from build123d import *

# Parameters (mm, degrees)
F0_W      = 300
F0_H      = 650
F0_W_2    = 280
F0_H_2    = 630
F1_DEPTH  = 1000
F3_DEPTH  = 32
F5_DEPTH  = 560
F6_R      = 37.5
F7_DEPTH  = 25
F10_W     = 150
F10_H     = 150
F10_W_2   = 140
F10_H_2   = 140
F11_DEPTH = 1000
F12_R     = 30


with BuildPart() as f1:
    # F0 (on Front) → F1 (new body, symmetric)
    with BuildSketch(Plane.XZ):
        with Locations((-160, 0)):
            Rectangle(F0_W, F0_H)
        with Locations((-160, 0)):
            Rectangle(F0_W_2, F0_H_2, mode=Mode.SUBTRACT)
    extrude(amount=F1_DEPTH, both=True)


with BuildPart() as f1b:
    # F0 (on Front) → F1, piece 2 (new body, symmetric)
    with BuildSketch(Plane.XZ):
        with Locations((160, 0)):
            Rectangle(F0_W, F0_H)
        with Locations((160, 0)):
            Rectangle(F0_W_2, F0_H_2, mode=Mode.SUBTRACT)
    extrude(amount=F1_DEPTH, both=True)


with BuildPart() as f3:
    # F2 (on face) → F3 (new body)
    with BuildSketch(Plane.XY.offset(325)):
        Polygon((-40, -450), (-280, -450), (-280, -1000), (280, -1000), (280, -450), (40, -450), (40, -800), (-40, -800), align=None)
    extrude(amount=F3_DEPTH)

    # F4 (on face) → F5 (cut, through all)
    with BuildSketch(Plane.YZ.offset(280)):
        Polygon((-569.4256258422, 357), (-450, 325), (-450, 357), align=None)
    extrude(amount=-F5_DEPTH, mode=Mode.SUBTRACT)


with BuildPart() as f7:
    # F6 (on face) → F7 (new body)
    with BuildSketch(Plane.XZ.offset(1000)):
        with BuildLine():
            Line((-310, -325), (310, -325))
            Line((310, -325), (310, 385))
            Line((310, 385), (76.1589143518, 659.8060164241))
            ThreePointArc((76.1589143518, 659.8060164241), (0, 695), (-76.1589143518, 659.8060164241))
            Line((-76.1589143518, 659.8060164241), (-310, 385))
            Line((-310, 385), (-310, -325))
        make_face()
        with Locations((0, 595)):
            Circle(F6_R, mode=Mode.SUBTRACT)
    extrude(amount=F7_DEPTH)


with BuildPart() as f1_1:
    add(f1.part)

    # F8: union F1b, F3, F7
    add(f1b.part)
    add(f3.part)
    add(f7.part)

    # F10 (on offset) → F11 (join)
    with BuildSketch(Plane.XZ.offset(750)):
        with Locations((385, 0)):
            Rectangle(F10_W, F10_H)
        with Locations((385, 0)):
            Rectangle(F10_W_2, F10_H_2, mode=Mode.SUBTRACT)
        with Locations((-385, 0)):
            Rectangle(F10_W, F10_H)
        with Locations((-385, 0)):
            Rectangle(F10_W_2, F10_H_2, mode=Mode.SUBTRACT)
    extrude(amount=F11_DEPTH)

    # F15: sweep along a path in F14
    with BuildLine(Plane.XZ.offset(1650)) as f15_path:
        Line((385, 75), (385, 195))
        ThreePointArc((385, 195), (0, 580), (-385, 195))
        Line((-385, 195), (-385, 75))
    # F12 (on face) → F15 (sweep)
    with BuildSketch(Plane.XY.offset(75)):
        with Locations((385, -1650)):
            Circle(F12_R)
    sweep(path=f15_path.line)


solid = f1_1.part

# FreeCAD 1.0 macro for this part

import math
import FreeCAD as App
import Part
import Sketcher

V = App.Vector
Q = App.Units.Quantity

doc = App.newDocument("Part")
body = doc.addObject("PartDesign::Body", "Body")

sketch1 = body.newObject("Sketcher::SketchObject", "Sketch")
sketch1.AttachmentSupport = (doc.getObject("XZ_Plane"), [""])
sketch1.MapMode = "FlatFace"
sketch1.addGeometry(Part.LineSegment(V(-310, 325, 0), V(-310, -325, 0)), False)
sketch1.addGeometry(Part.LineSegment(V(-310, -325, 0), V(-10, -325, 0)), False)
sketch1.addGeometry(Part.LineSegment(V(-10, -325, 0), V(-10, 325, 0)), False)
sketch1.addGeometry(Part.LineSegment(V(-10, 325, 0), V(-310, 325, 0)), False)
sketch1.addGeometry(Part.LineSegment(V(-20, -315, 0), V(-300, -315, 0)), False)
sketch1.addGeometry(Part.LineSegment(V(-300, -315, 0), V(-300, 315, 0)), False)
sketch1.addGeometry(Part.LineSegment(V(-300, 315, 0), V(-20, 315, 0)), False)
sketch1.addGeometry(Part.LineSegment(V(-20, 315, 0), V(-20, -315, 0)), False)
sketch1.addConstraint(Sketcher.Constraint("Coincident", 0, 2, 1, 1))
sketch1.addConstraint(Sketcher.Constraint("Coincident", 1, 2, 2, 1))
sketch1.addConstraint(Sketcher.Constraint("Coincident", 2, 2, 3, 1))
sketch1.addConstraint(Sketcher.Constraint("Coincident", 3, 2, 0, 1))
sketch1.addConstraint(Sketcher.Constraint("Coincident", 4, 2, 5, 1))
sketch1.addConstraint(Sketcher.Constraint("Coincident", 5, 2, 6, 1))
sketch1.addConstraint(Sketcher.Constraint("Coincident", 6, 2, 7, 1))
sketch1.addConstraint(Sketcher.Constraint("Coincident", 7, 2, 4, 1))
sketch1.addConstraint(Sketcher.Constraint("Vertical", 0))
sketch1.addConstraint(Sketcher.Constraint("Horizontal", 1))
sketch1.addConstraint(Sketcher.Constraint("Vertical", 2))
sketch1.addConstraint(Sketcher.Constraint("Horizontal", 3))
sketch1.addConstraint(Sketcher.Constraint("Horizontal", 4))
sketch1.addConstraint(Sketcher.Constraint("Vertical", 5))
sketch1.addConstraint(Sketcher.Constraint("Horizontal", 6))
sketch1.addConstraint(Sketcher.Constraint("Vertical", 7))
sketch1.addConstraint(Sketcher.Constraint("DistanceX", 1, 1, 1, 2, Q("300 mm")))
sketch1.addConstraint(Sketcher.Constraint("DistanceX", 4, 2, 4, 1, Q("280 mm")))
sketch1.addConstraint(Sketcher.Constraint("DistanceY", 0, 2, 0, 1, Q("650 mm")))
sketch1.addConstraint(Sketcher.Constraint("DistanceY", 5, 1, 5, 2, Q("630 mm")))
sketch1.addConstraint(Sketcher.Constraint("DistanceX", 0, 2, -1, 1, Q("310 mm")))
sketch1.addConstraint(Sketcher.Constraint("DistanceY", 0, 2, -1, 1, Q("325 mm")))
sketch1.addConstraint(Sketcher.Constraint("DistanceX", 4, 2, -1, 1, Q("300 mm")))
sketch1.addConstraint(Sketcher.Constraint("DistanceY", 4, 2, -1, 1, Q("315 mm")))
pad1 = body.newObject("PartDesign::Pad", "Pad")
pad1.Profile = sketch1
pad1.Length = 2000
pad1.Midplane = True
body2 = doc.addObject("PartDesign::Body", "Body001")

sketch2 = body2.newObject("Sketcher::SketchObject", "Sketch001")
sketch2.AttachmentSupport = (doc.getObject("XZ_Plane001"), [""])
sketch2.MapMode = "FlatFace"
sketch2.addGeometry(Part.LineSegment(V(10, 325, 0), V(10, -325, 0)), False)
sketch2.addGeometry(Part.LineSegment(V(10, -325, 0), V(310, -325, 0)), False)
sketch2.addGeometry(Part.LineSegment(V(310, -325, 0), V(310, 325, 0)), False)
sketch2.addGeometry(Part.LineSegment(V(310, 325, 0), V(10, 325, 0)), False)
sketch2.addGeometry(Part.LineSegment(V(300, -315, 0), V(20, -315, 0)), False)
sketch2.addGeometry(Part.LineSegment(V(20, -315, 0), V(20, 315, 0)), False)
sketch2.addGeometry(Part.LineSegment(V(20, 315, 0), V(300, 315, 0)), False)
sketch2.addGeometry(Part.LineSegment(V(300, 315, 0), V(300, -315, 0)), False)
sketch2.addConstraint(Sketcher.Constraint("Coincident", 0, 2, 1, 1))
sketch2.addConstraint(Sketcher.Constraint("Coincident", 1, 2, 2, 1))
sketch2.addConstraint(Sketcher.Constraint("Coincident", 2, 2, 3, 1))
sketch2.addConstraint(Sketcher.Constraint("Coincident", 3, 2, 0, 1))
sketch2.addConstraint(Sketcher.Constraint("Coincident", 4, 2, 5, 1))
sketch2.addConstraint(Sketcher.Constraint("Coincident", 5, 2, 6, 1))
sketch2.addConstraint(Sketcher.Constraint("Coincident", 6, 2, 7, 1))
sketch2.addConstraint(Sketcher.Constraint("Coincident", 7, 2, 4, 1))
sketch2.addConstraint(Sketcher.Constraint("Vertical", 0))
sketch2.addConstraint(Sketcher.Constraint("Horizontal", 1))
sketch2.addConstraint(Sketcher.Constraint("Vertical", 2))
sketch2.addConstraint(Sketcher.Constraint("Horizontal", 3))
sketch2.addConstraint(Sketcher.Constraint("Horizontal", 4))
sketch2.addConstraint(Sketcher.Constraint("Vertical", 5))
sketch2.addConstraint(Sketcher.Constraint("Horizontal", 6))
sketch2.addConstraint(Sketcher.Constraint("Vertical", 7))
sketch2.addConstraint(Sketcher.Constraint("DistanceX", 1, 1, 1, 2, Q("300 mm")))
sketch2.addConstraint(Sketcher.Constraint("DistanceX", 4, 2, 4, 1, Q("280 mm")))
sketch2.addConstraint(Sketcher.Constraint("DistanceY", 0, 2, 0, 1, Q("650 mm")))
sketch2.addConstraint(Sketcher.Constraint("DistanceY", 5, 1, 5, 2, Q("630 mm")))
sketch2.addConstraint(Sketcher.Constraint("DistanceX", -1, 1, 0, 2, Q("10 mm")))
sketch2.addConstraint(Sketcher.Constraint("DistanceY", 0, 2, -1, 1, Q("325 mm")))
sketch2.addConstraint(Sketcher.Constraint("DistanceX", -1, 1, 4, 2, Q("20 mm")))
sketch2.addConstraint(Sketcher.Constraint("DistanceY", 4, 2, -1, 1, Q("315 mm")))
pad2 = body2.newObject("PartDesign::Pad", "Pad001")
pad2.Profile = sketch2
pad2.Length = 2000
pad2.Midplane = True
body3 = doc.addObject("PartDesign::Body", "Body002")

sketch3 = body3.newObject("Sketcher::SketchObject", "Sketch002")
sketch3.AttachmentSupport = (doc.getObject("XY_Plane002"), [""])
sketch3.MapMode = "FlatFace"
sketch3.AttachmentOffset = App.Placement(V(0, 0, 325), App.Rotation())
sketch3.addGeometry(Part.LineSegment(V(-40, -450, 0), V(-280, -450, 0)), False)
sketch3.addGeometry(Part.LineSegment(V(-280, -450, 0), V(-280, -1000, 0)), False)
sketch3.addGeometry(Part.LineSegment(V(-280, -1000, 0), V(280, -1000, 0)), False)
sketch3.addGeometry(Part.LineSegment(V(280, -1000, 0), V(280, -450, 0)), False)
sketch3.addGeometry(Part.LineSegment(V(280, -450, 0), V(40, -450, 0)), False)
sketch3.addGeometry(Part.LineSegment(V(40, -450, 0), V(40, -800, 0)), False)
sketch3.addGeometry(Part.LineSegment(V(40, -800, 0), V(-40, -800, 0)), False)
sketch3.addGeometry(Part.LineSegment(V(-40, -800, 0), V(-40, -450, 0)), False)
sketch3.addConstraint(Sketcher.Constraint("Coincident", 0, 2, 1, 1))
sketch3.addConstraint(Sketcher.Constraint("Coincident", 1, 2, 2, 1))
sketch3.addConstraint(Sketcher.Constraint("Coincident", 2, 2, 3, 1))
sketch3.addConstraint(Sketcher.Constraint("Coincident", 3, 2, 4, 1))
sketch3.addConstraint(Sketcher.Constraint("Coincident", 4, 2, 5, 1))
sketch3.addConstraint(Sketcher.Constraint("Coincident", 5, 2, 6, 1))
sketch3.addConstraint(Sketcher.Constraint("Coincident", 6, 2, 7, 1))
sketch3.addConstraint(Sketcher.Constraint("Coincident", 7, 2, 0, 1))
sketch3.addConstraint(Sketcher.Constraint("Horizontal", 0))
sketch3.addConstraint(Sketcher.Constraint("Vertical", 1))
sketch3.addConstraint(Sketcher.Constraint("Horizontal", 2))
sketch3.addConstraint(Sketcher.Constraint("Vertical", 3))
sketch3.addConstraint(Sketcher.Constraint("Horizontal", 4))
sketch3.addConstraint(Sketcher.Constraint("Vertical", 5))
sketch3.addConstraint(Sketcher.Constraint("Horizontal", 6))
sketch3.addConstraint(Sketcher.Constraint("Vertical", 7))
sketch3.addConstraint(Sketcher.Constraint("Symmetric", 0, 2, 3, 2, -2))
sketch3.addConstraint(Sketcher.Constraint("Equal", 0, 4))
sketch3.addConstraint(Sketcher.Constraint("DistanceX", 0, 2, 0, 1, Q("240 mm")))
sketch3.addConstraint(Sketcher.Constraint("DistanceX", 2, 1, 2, 2, Q("560 mm")))
sketch3.addConstraint(Sketcher.Constraint("DistanceY", 1, 2, 1, 1, Q("550 mm")))
sketch3.addConstraint(Sketcher.Constraint("DistanceY", 5, 2, 5, 1, Q("350 mm")))
sketch3.addConstraint(Sketcher.Constraint("DistanceY", 0, 2, -1, 1, Q("450 mm")))
pad3 = body3.newObject("PartDesign::Pad", "Pad002")
pad3.Profile = sketch3
pad3.Length = 32

sketch4 = body3.newObject("Sketcher::SketchObject", "Sketch003")
sketch4.AttachmentSupport = (doc.getObject("YZ_Plane002"), [""])
sketch4.MapMode = "FlatFace"
sketch4.AttachmentOffset = App.Placement(V(0, 0, 280), App.Rotation())
sketch4.addGeometry(Part.LineSegment(V(-569, 357, 0), V(-450, 325, 0)), False)
sketch4.addGeometry(Part.LineSegment(V(-450, 325, 0), V(-450, 357, 0)), False)
sketch4.addGeometry(Part.LineSegment(V(-450, 357, 0), V(-569, 357, 0)), False)
sketch4.addConstraint(Sketcher.Constraint("Coincident", 0, 2, 1, 1))
sketch4.addConstraint(Sketcher.Constraint("Coincident", 1, 2, 2, 1))
sketch4.addConstraint(Sketcher.Constraint("Coincident", 2, 2, 0, 1))
sketch4.addConstraint(Sketcher.Constraint("Vertical", 1))
sketch4.addConstraint(Sketcher.Constraint("Horizontal", 2))
sketch4.addConstraint(Sketcher.Constraint("DistanceY", 1, 1, 1, 2, Q("32 mm")))
sketch4.addConstraint(Sketcher.Constraint("Angle", 0, Q("-15 deg")))
sketch4.addConstraint(Sketcher.Constraint("DistanceX", 0, 2, -1, 1, Q("450 mm")))
sketch4.addConstraint(Sketcher.Constraint("DistanceY", -1, 1, 0, 2, Q("325 mm")))
pocket1 = body3.newObject("PartDesign::Pocket", "Pocket")
pocket1.Profile = sketch4
pocket1.Type = "ThroughAll"
body4 = doc.addObject("PartDesign::Body", "Body003")

sketch5 = body4.newObject("Sketcher::SketchObject", "Sketch004")
sketch5.AttachmentSupport = (doc.getObject("XZ_Plane003"), [""])
sketch5.MapMode = "FlatFace"
sketch5.AttachmentOffset = App.Placement(V(0, 0, 1000), App.Rotation())
sketch5.addGeometry(Part.LineSegment(V(-310, -325, 0), V(310, -325, 0)), False)
sketch5.addGeometry(Part.LineSegment(V(310, -325, 0), V(310, 385, 0)), False)
sketch5.addGeometry(Part.LineSegment(V(310, 385, 0), V(76, 660, 0)), False)
sketch5.addGeometry(Part.ArcOfCircle(Part.Circle(V(0, 595, 0), V(0, 0, 1), 100), math.radians(40), math.radians(140)), False)
sketch5.addGeometry(Part.LineSegment(V(-76, 660, 0), V(-310, 385, 0)), False)
sketch5.addGeometry(Part.LineSegment(V(-310, 385, 0), V(-310, -325, 0)), False)
sketch5.addGeometry(Part.Circle(V(0, 595, 0), V(0, 0, 1), 38), False)
sketch5.addConstraint(Sketcher.Constraint("Coincident", 0, 2, 1, 1))
sketch5.addConstraint(Sketcher.Constraint("Coincident", 1, 2, 2, 1))
sketch5.addConstraint(Sketcher.Constraint("Tangent", 2, 2, 3, 1))
sketch5.addConstraint(Sketcher.Constraint("Tangent", 3, 2, 4, 1))
sketch5.addConstraint(Sketcher.Constraint("Coincident", 4, 2, 5, 1))
sketch5.addConstraint(Sketcher.Constraint("Coincident", 5, 2, 0, 1))
sketch5.addConstraint(Sketcher.Constraint("Horizontal", 0))
sketch5.addConstraint(Sketcher.Constraint("Vertical", 1))
sketch5.addConstraint(Sketcher.Constraint("Vertical", 5))
sketch5.addConstraint(Sketcher.Constraint("Coincident", 6, 3, 3, 3))
sketch5.addConstraint(Sketcher.Constraint("Symmetric", 2, 2, 3, 2, -2))
sketch5.addConstraint(Sketcher.Constraint("Horizontal", 1, 2, 4, 2))
sketch5.addConstraint(Sketcher.Constraint("Diameter", 6, Q("75 mm")))
sketch5.addConstraint(Sketcher.Constraint("Radius", 3, Q("100 mm")))
sketch5.addConstraint(Sketcher.Constraint("DistanceX", 0, 1, 0, 2, Q("620 mm")))
sketch5.addConstraint(Sketcher.Constraint("DistanceY", 1, 1, 1, 2, Q("710 mm")))
sketch5.addConstraint(Sketcher.Constraint("DistanceY", -1, 1, 3, 3, Q("595 mm")))
sketch5.addConstraint(Sketcher.Constraint("DistanceY", 0, 2, -1, 1, Q("325 mm")))
pad4 = body4.newObject("PartDesign::Pad", "Pad003")
pad4.Profile = sketch5
pad4.Length = 25
body.AllowCompound = True
doc.recompute()

boolean = body.newObject("PartDesign::Boolean", "Boolean")
boolean.Type = "Fuse"
boolean.addObjects([body2])
doc.recompute()

boolean2 = body.newObject("PartDesign::Boolean", "Boolean001")
boolean2.Type = "Fuse"
boolean2.addObjects([body3])
doc.recompute()

boolean3 = body.newObject("PartDesign::Boolean", "Boolean002")
boolean3.Type = "Fuse"
boolean3.addObjects([body4])

sketch6 = body.newObject("Sketcher::SketchObject", "Sketch005")
sketch6.AttachmentSupport = (doc.getObject("XZ_Plane"), [""])
sketch6.MapMode = "FlatFace"
sketch6.AttachmentOffset = App.Placement(V(0, 0, 750), App.Rotation())
sketch6.addGeometry(Part.LineSegment(V(310, 75, 0), V(310, -75, 0)), False)
sketch6.addGeometry(Part.LineSegment(V(310, -75, 0), V(460, -75, 0)), False)
sketch6.addGeometry(Part.LineSegment(V(460, -75, 0), V(460, 75, 0)), False)
sketch6.addGeometry(Part.LineSegment(V(460, 75, 0), V(310, 75, 0)), False)
sketch6.addGeometry(Part.LineSegment(V(455, -70, 0), V(315, -70, 0)), False)
sketch6.addGeometry(Part.LineSegment(V(315, -70, 0), V(315, 70, 0)), False)
sketch6.addGeometry(Part.LineSegment(V(315, 70, 0), V(455, 70, 0)), False)
sketch6.addGeometry(Part.LineSegment(V(455, 70, 0), V(455, -70, 0)), False)
sketch6.addGeometry(Part.LineSegment(V(-460, 75, 0), V(-460, -75, 0)), False)
sketch6.addGeometry(Part.LineSegment(V(-460, -75, 0), V(-310, -75, 0)), False)
sketch6.addGeometry(Part.LineSegment(V(-310, -75, 0), V(-310, 75, 0)), False)
sketch6.addGeometry(Part.LineSegment(V(-310, 75, 0), V(-460, 75, 0)), False)
sketch6.addGeometry(Part.LineSegment(V(-315, -70, 0), V(-455, -70, 0)), False)
sketch6.addGeometry(Part.LineSegment(V(-455, -70, 0), V(-455, 70, 0)), False)
sketch6.addGeometry(Part.LineSegment(V(-455, 70, 0), V(-315, 70, 0)), False)
sketch6.addGeometry(Part.LineSegment(V(-315, 70, 0), V(-315, -70, 0)), False)
sketch6.addConstraint(Sketcher.Constraint("Coincident", 0, 2, 1, 1))
sketch6.addConstraint(Sketcher.Constraint("Coincident", 1, 2, 2, 1))
sketch6.addConstraint(Sketcher.Constraint("Coincident", 2, 2, 3, 1))
sketch6.addConstraint(Sketcher.Constraint("Coincident", 3, 2, 0, 1))
sketch6.addConstraint(Sketcher.Constraint("Coincident", 4, 2, 5, 1))
sketch6.addConstraint(Sketcher.Constraint("Coincident", 5, 2, 6, 1))
sketch6.addConstraint(Sketcher.Constraint("Coincident", 6, 2, 7, 1))
sketch6.addConstraint(Sketcher.Constraint("Coincident", 7, 2, 4, 1))
sketch6.addConstraint(Sketcher.Constraint("Coincident", 8, 2, 9, 1))
sketch6.addConstraint(Sketcher.Constraint("Coincident", 9, 2, 10, 1))
sketch6.addConstraint(Sketcher.Constraint("Coincident", 10, 2, 11, 1))
sketch6.addConstraint(Sketcher.Constraint("Coincident", 11, 2, 8, 1))
sketch6.addConstraint(Sketcher.Constraint("Coincident", 12, 2, 13, 1))
sketch6.addConstraint(Sketcher.Constraint("Coincident", 13, 2, 14, 1))
sketch6.addConstraint(Sketcher.Constraint("Coincident", 14, 2, 15, 1))
sketch6.addConstraint(Sketcher.Constraint("Coincident", 15, 2, 12, 1))
sketch6.addConstraint(Sketcher.Constraint("Vertical", 0))
sketch6.addConstraint(Sketcher.Constraint("Horizontal", 1))
sketch6.addConstraint(Sketcher.Constraint("Vertical", 2))
sketch6.addConstraint(Sketcher.Constraint("Horizontal", 3))
sketch6.addConstraint(Sketcher.Constraint("Horizontal", 4))
sketch6.addConstraint(Sketcher.Constraint("Vertical", 5))
sketch6.addConstraint(Sketcher.Constraint("Horizontal", 6))
sketch6.addConstraint(Sketcher.Constraint("Vertical", 7))
sketch6.addConstraint(Sketcher.Constraint("Vertical", 8))
sketch6.addConstraint(Sketcher.Constraint("Horizontal", 9))
sketch6.addConstraint(Sketcher.Constraint("Vertical", 10))
sketch6.addConstraint(Sketcher.Constraint("Horizontal", 11))
sketch6.addConstraint(Sketcher.Constraint("Horizontal", 12))
sketch6.addConstraint(Sketcher.Constraint("Vertical", 13))
sketch6.addConstraint(Sketcher.Constraint("Horizontal", 14))
sketch6.addConstraint(Sketcher.Constraint("Vertical", 15))
sketch6.addConstraint(Sketcher.Constraint("Symmetric", 2, 2, 8, 2, -1, 1))
sketch6.addConstraint(Sketcher.Constraint("Symmetric", 0, 2, 10, 2, -1, 1))
sketch6.addConstraint(Sketcher.Constraint("Symmetric", 6, 2, 12, 2, -1, 1))
sketch6.addConstraint(Sketcher.Constraint("Symmetric", 4, 2, 14, 2, -1, 1))
sketch6.addConstraint(Sketcher.Constraint("Horizontal", 1, 2, 8, 2))
sketch6.addConstraint(Sketcher.Constraint("Horizontal", 7, 2, 12, 2))
sketch6.addConstraint(Sketcher.Constraint("Equal", 11, 0))
sketch6.addConstraint(Sketcher.Constraint("Equal", 14, 5))
sketch6.addConstraint(Sketcher.Constraint("DistanceX", 1, 1, 1, 2, Q("150 mm")))
sketch6.addConstraint(Sketcher.Constraint("DistanceX", 4, 2, 4, 1, Q("140 mm")))
sketch6.addConstraint(Sketcher.Constraint("DistanceX", -1, 1, 0, 2, Q("310 mm")))
sketch6.addConstraint(Sketcher.Constraint("DistanceX", -1, 1, 4, 2, Q("315 mm")))
pad5 = body.newObject("PartDesign::Pad", "Pad004")
pad5.Profile = sketch6
pad5.Length = 1000

sketch7 = body.newObject("Sketcher::SketchObject", "Sketch006")
sketch7.AttachmentSupport = (doc.getObject("XY_Plane"), [""])
sketch7.MapMode = "FlatFace"
sketch7.AttachmentOffset = App.Placement(V(0, 0, 75), App.Rotation())
sketch7.addGeometry(Part.Circle(V(385, -1650, 0), V(0, 0, 1), 30), False)
sketch7.addConstraint(Sketcher.Constraint("Diameter", 0, Q("60 mm")))
sketch7.addConstraint(Sketcher.Constraint("DistanceX", -1, 1, 0, 3, Q("385 mm")))
sketch7.addConstraint(Sketcher.Constraint("DistanceY", 0, 3, -1, 1, Q("1650 mm")))

sketch8 = body.newObject("Sketcher::SketchObject", "Sketch007")
sketch8.AttachmentSupport = (doc.getObject("XZ_Plane"), [""])
sketch8.MapMode = "FlatFace"
sketch8.AttachmentOffset = App.Placement(V(0, 0, 1650), App.Rotation())
sketch8.addGeometry(Part.LineSegment(V(385, 75, 0), V(385, 195, 0)), False)
sketch8.addGeometry(Part.ArcOfCircle(Part.Circle(V(0, 195, 0), V(0, 0, 1), 385), math.radians(0), math.radians(180)), False)
sketch8.addGeometry(Part.LineSegment(V(-385, 195, 0), V(-385, 75, 0)), False)
sketch8.addConstraint(Sketcher.Constraint("Tangent", 0, 2, 1, 1))
sketch8.addConstraint(Sketcher.Constraint("Tangent", 1, 2, 2, 1))
sketch8.addConstraint(Sketcher.Constraint("Vertical", 0))
sketch8.addConstraint(Sketcher.Constraint("Vertical", 2))
sketch8.addConstraint(Sketcher.Constraint("Symmetric", 0, 1, 2, 2, -2))
sketch8.addConstraint(Sketcher.Constraint("Radius", 1, Q("385 mm")))
sketch8.addConstraint(Sketcher.Constraint("DistanceY", 0, 1, 0, 2, Q("120 mm")))
sketch8.addConstraint(Sketcher.Constraint("DistanceY", -1, 1, 1, 3, Q("195 mm")))
doc.recompute()

additivepipe = body.newObject("PartDesign::AdditivePipe", "AdditivePipe")
additivepipe.Profile = sketch7
additivepipe.Spine = (sketch8, ["Edge1", "Edge2", "Edge3"])

doc.recompute()
